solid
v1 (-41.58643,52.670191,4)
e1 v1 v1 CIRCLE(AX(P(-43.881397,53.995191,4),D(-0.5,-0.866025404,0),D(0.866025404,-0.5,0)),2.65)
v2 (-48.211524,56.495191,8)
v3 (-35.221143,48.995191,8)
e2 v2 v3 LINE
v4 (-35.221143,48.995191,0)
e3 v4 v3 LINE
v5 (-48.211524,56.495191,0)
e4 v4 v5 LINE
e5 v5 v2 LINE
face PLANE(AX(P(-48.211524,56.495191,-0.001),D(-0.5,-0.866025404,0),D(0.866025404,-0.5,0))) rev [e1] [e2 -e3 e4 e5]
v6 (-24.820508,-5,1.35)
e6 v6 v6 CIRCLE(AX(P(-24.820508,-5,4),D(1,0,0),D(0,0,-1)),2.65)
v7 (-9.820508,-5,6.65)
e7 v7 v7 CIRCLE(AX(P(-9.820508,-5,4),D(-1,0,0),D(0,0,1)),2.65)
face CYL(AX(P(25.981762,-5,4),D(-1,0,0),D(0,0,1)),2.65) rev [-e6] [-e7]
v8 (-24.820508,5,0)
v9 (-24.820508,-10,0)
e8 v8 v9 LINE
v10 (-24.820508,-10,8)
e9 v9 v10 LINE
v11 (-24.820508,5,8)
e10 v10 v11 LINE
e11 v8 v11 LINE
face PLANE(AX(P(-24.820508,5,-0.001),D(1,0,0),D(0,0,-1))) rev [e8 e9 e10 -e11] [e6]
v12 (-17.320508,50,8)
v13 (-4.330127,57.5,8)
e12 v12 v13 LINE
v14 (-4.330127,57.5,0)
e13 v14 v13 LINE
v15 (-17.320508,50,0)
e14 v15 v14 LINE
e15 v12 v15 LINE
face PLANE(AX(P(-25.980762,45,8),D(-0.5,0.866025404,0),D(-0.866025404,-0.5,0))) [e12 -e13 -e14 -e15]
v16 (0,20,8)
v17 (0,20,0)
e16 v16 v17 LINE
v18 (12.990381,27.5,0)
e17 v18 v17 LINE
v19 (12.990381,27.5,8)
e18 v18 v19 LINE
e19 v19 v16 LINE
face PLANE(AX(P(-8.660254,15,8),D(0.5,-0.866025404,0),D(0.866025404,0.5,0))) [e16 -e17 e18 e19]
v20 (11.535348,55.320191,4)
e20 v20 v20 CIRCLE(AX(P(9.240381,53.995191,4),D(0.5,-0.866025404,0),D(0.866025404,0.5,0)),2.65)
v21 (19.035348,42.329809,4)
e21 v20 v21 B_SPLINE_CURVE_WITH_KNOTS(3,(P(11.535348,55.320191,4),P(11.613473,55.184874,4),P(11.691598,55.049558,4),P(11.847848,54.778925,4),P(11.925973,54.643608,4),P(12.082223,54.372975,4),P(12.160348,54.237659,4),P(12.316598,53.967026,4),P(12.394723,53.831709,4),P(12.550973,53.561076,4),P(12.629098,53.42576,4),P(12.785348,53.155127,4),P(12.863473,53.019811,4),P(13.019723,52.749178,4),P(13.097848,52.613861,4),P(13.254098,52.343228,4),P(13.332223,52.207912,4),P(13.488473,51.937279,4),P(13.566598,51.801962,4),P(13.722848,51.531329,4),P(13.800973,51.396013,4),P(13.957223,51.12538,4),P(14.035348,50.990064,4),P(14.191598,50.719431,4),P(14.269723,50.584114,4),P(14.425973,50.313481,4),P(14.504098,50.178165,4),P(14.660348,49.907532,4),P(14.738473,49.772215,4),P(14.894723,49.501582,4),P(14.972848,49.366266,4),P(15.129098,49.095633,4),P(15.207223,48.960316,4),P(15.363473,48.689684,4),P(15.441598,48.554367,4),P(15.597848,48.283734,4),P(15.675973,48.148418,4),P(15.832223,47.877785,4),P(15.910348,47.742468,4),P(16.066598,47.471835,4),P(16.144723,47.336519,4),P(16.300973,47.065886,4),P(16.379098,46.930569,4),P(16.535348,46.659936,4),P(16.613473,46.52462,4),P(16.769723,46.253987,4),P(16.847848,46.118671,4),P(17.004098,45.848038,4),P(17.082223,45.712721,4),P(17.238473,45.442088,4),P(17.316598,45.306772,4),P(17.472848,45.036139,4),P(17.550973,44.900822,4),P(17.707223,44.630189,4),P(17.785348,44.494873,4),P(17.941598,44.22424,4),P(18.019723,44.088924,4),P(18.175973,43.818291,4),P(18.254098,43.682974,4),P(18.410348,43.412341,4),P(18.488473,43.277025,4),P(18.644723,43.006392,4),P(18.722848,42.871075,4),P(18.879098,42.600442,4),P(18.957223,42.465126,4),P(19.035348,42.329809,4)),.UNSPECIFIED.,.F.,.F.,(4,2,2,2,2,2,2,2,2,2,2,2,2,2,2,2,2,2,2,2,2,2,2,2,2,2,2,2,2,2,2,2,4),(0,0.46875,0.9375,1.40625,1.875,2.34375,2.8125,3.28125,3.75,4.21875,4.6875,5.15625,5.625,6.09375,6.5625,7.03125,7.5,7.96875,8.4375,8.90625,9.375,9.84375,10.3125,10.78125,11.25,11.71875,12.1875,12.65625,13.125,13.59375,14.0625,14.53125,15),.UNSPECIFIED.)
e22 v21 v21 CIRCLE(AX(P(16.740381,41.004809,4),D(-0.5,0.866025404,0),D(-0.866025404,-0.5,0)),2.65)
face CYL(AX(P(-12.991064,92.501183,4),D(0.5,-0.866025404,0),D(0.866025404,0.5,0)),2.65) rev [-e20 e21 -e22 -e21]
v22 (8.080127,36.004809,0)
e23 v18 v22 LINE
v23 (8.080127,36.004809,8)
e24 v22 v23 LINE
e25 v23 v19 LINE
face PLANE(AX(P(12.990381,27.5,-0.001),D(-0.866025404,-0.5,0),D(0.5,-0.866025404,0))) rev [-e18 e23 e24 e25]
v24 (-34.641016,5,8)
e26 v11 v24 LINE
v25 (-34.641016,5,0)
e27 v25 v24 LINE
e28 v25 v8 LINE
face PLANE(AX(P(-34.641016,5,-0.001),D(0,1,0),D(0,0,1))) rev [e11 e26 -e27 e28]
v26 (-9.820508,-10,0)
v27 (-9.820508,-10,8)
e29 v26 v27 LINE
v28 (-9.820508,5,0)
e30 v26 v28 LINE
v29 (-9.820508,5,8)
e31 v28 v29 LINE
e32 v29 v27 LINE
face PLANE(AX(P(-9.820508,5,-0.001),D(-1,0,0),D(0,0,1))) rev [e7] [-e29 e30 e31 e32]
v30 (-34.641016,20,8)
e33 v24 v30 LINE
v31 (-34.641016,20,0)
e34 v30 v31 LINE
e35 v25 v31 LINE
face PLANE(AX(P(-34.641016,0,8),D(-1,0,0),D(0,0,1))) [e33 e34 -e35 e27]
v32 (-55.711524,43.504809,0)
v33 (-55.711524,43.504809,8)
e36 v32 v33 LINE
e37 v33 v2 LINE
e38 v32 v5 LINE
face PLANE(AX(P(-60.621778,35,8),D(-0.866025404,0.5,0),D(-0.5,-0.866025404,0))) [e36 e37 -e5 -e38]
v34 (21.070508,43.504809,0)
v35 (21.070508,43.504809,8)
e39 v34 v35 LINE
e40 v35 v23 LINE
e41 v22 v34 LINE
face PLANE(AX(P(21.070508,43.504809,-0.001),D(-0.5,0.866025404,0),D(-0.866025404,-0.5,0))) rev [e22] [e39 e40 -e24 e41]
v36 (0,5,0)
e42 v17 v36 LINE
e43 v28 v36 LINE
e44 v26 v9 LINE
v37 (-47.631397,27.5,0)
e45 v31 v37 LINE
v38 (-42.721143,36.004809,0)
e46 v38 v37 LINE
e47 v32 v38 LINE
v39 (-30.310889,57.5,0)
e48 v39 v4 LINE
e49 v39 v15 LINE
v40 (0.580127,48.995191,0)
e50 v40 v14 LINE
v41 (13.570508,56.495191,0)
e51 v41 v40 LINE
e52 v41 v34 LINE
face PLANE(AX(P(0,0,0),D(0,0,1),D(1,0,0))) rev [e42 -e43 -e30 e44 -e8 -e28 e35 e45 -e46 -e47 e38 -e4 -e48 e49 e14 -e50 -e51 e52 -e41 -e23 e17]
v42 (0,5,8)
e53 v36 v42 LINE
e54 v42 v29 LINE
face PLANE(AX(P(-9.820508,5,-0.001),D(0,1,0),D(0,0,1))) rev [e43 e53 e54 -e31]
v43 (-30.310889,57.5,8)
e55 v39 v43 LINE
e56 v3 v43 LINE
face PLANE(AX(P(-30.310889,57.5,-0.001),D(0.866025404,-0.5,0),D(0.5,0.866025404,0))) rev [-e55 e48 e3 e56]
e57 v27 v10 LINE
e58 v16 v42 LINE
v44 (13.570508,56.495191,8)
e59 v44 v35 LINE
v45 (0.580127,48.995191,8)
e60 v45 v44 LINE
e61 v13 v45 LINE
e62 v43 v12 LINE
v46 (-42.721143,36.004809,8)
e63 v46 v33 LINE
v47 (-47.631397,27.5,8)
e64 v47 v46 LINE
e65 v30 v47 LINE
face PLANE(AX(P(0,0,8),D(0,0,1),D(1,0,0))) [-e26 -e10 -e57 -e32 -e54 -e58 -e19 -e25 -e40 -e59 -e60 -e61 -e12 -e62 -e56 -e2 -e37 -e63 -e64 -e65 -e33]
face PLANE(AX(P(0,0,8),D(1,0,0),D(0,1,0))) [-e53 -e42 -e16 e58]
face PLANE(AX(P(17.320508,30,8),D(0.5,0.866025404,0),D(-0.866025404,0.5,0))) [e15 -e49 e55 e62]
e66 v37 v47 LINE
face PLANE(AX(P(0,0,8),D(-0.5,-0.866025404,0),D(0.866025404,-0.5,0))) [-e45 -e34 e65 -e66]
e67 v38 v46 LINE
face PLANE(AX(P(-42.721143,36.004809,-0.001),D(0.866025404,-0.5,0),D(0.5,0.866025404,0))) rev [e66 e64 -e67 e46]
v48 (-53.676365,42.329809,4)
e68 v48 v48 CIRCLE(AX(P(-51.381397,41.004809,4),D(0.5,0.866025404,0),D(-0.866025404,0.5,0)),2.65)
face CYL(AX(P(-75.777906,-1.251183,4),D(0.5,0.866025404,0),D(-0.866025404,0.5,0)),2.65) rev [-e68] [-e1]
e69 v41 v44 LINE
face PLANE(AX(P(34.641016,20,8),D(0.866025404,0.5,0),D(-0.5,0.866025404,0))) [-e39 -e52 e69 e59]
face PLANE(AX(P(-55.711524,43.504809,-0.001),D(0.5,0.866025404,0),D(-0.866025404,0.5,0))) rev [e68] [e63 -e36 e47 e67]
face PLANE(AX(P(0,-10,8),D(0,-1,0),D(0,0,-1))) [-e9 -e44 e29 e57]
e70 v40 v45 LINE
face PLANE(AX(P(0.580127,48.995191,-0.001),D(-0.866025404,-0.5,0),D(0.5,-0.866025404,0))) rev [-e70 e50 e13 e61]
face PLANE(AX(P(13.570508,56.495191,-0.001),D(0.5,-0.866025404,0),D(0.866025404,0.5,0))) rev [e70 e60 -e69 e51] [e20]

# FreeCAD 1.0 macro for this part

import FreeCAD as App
import Part
import Sketcher
from FreeCAD import Vector
Q = App.Units.Quantity

doc = App.newDocument("Part")
body = doc.addObject("PartDesign::Body", "Body")

sketch1 = doc.addObject("Sketcher::SketchObject", "Sketch")
body.addObject(sketch1)
sketch1.AttachmentSupport = (doc.XY_Plane, [""])
sketch1.MapMode = "FlatFace"
sketch1.addGeometry(Part.LineSegment(Vector(-61, 35, 0), Vector(-52, 30, 0)), False)
sketch1.addGeometry(Part.LineSegment(Vector(-52, 30, 0), Vector(-35, 20, 0)), False)
sketch1.addGeometry(Part.LineSegment(Vector(-35, 20, 0), Vector(-35, -10, 0)), False)
sketch1.addGeometry(Part.LineSegment(Vector(-35, -10, 0), Vector(0, -10, 0)), False)
sketch1.addGeometry(Part.LineSegment(Vector(0, -10, 0), Vector(0, 20, 0)), False)
sketch1.addGeometry(Part.LineSegment(Vector(0, 20, 0), Vector(26, 35, 0)), False)
sketch1.addGeometry(Part.LineSegment(Vector(26, 35, 0), Vector(9, 65, 0)), False)
sketch1.addGeometry(Part.LineSegment(Vector(9, 65, 0), Vector(0, 60, 0)), False)
sketch1.addGeometry(Part.LineSegment(Vector(0, 60, 0), Vector(-17, 50, 0)), False)
sketch1.addGeometry(Part.LineSegment(Vector(-17, 50, 0), Vector(-43, 65, 0)), False)
sketch1.addGeometry(Part.LineSegment(Vector(-43, 65, 0), Vector(-61, 35, 0)), False)
sketch1.addConstraint(Sketcher.Constraint("Coincident", 0, 2, 1, 1))
sketch1.addConstraint(Sketcher.Constraint("Coincident", 1, 2, 2, 1))
sketch1.addConstraint(Sketcher.Constraint("Coincident", 2, 2, 3, 1))
sketch1.addConstraint(Sketcher.Constraint("Coincident", 3, 2, 4, 1))
sketch1.addConstraint(Sketcher.Constraint("Coincident", 4, 2, 5, 1))
sketch1.addConstraint(Sketcher.Constraint("Coincident", 5, 2, 6, 1))
sketch1.addConstraint(Sketcher.Constraint("Coincident", 6, 2, 7, 1))
sketch1.addConstraint(Sketcher.Constraint("Coincident", 7, 2, 8, 1))
sketch1.addConstraint(Sketcher.Constraint("Coincident", 8, 2, 9, 1))
sketch1.addConstraint(Sketcher.Constraint("Coincident", 9, 2, 10, 1))
sketch1.addConstraint(Sketcher.Constraint("Coincident", 10, 2, 0, 1))
sketch1.addConstraint(Sketcher.Constraint("Vertical", 2))
sketch1.addConstraint(Sketcher.Constraint("Horizontal", 3))
sketch1.addConstraint(Sketcher.Constraint("Vertical", 4))
sketch1.addConstraint(Sketcher.Constraint("PointOnObject", 3, 2, -2))
sketch1.addConstraint(Sketcher.Constraint("PointOnObject", 7, 2, -2))
sketch1.addConstraint(Sketcher.Constraint("Parallel", 0, 1))
sketch1.addConstraint(Sketcher.Constraint("Perpendicular", 5, 6))
sketch1.addConstraint(Sketcher.Constraint("Perpendicular", 6, 7))
sketch1.addConstraint(Sketcher.Constraint("Parallel", 7, 8))
sketch1.addConstraint(Sketcher.Constraint("Parallel", 1, 9))
sketch1.addConstraint(Sketcher.Constraint("Perpendicular", 9, 10))
sketch1.addConstraint(Sketcher.Constraint("Horizontal", 1, 2, 4, 2))
sketch1.addConstraint(Sketcher.Constraint("Horizontal", 6, 2, 9, 2))
sketch1.addConstraint(Sketcher.Constraint("Horizontal", 5, 2, 10, 2))
sketch1.addConstraint(Sketcher.Constraint("Equal", 0, 7))
sketch1.addConstraint(Sketcher.Constraint("Equal", 1, 8))
sketch1.addConstraint(Sketcher.Constraint("Equal", 5, 9))
sketch1.addConstraint(Sketcher.Constraint("DistanceY", 2, 2, 2, 1, Q("30 mm")))
sketch1.addConstraint(Sketcher.Constraint("Angle", 0, Q("-30 deg")))
sketch1.addConstraint(Sketcher.Constraint("Distance", 0, Q("10 mm")))
sketch1.addConstraint(Sketcher.Constraint("Distance", 1, Q("20 mm")))
sketch1.addConstraint(Sketcher.Constraint("DistanceY", -1, 1, 0, 2, Q("30 mm")))
pad1 = doc.addObject("PartDesign::Pad", "Pad")
body.addObject(pad1)
pad1.Profile = sketch1
pad1.Length = 8

sketch2 = doc.addObject("Sketcher::SketchObject", "Sketch001")
body.addObject(sketch2)
sketch2.AttachmentSupport = (doc.YZ_Plane, [""])
sketch2.MapMode = "FlatFace"
sketch2.AttachmentOffset = App.Placement(Vector(0, 0, -34.641016), App.Rotation())
sketch2.addGeometry(Part.Circle(Vector(-5, 4, 0), Vector(0, 0, 1), 2.6), False)
sketch2.addConstraint(Sketcher.Constraint("Diameter", 0, Q("5.3 mm")))
sketch2.addConstraint(Sketcher.Constraint("DistanceX", 0, 3, -1, 1, Q("5 mm")))
sketch2.addConstraint(Sketcher.Constraint("DistanceY", -1, 1, 0, 3, Q("4 mm")))
pocket1 = doc.addObject("PartDesign::Pocket", "Pocket")
body.addObject(pocket1)
pocket1.Profile = sketch2
pocket1.Type = "UpToFirst"
pocket1.Reversed = True

sketch3 = doc.addObject("Sketcher::SketchObject", "Sketch002")
body.addObject(sketch3)
sketch3.Placement = App.Placement(Vector(17.320508, 30, 0), App.Rotation(Vector(-0.866025404, 0.5, 0), Vector(0, 0, 1), Vector(0.5, 0.866025404, 0), "ZXY"))
sketch3.addGeometry(Part.Circle(Vector(65, 4, 0), Vector(0, 0, 1), 2.6), False)
sketch3.addConstraint(Sketcher.Constraint("Diameter", 0, Q("5.3 mm")))
sketch3.addConstraint(Sketcher.Constraint("DistanceX", -1, 1, 0, 3, Q("65 mm")))
sketch3.addConstraint(Sketcher.Constraint("DistanceY", -1, 1, 0, 3, Q("4 mm")))
pocket2 = doc.addObject("PartDesign::Pocket", "Pocket001")
body.addObject(pocket2)
pocket2.Profile = sketch3
pocket2.Type = "UpToFirst"

sketch4 = doc.addObject("Sketcher::SketchObject", "Sketch003")
body.addObject(sketch4)
sketch4.Placement = App.Placement(Vector(-8.660254, 15, 0), App.Rotation(Vector(0.866025404, 0.5, 0), Vector(0, 0, 1), Vector(0.5, -0.866025404, 0), "ZXY"))
sketch4.addGeometry(Part.Circle(Vector(35, 4, 0), Vector(0, 0, 1), 2.6), False)
sketch4.addConstraint(Sketcher.Constraint("Diameter", 0, Q("5.3 mm")))
sketch4.addConstraint(Sketcher.Constraint("DistanceX", -1, 1, 0, 3, Q("35 mm")))
sketch4.addConstraint(Sketcher.Constraint("DistanceY", -1, 1, 0, 3, Q("4 mm")))
pocket3 = doc.addObject("PartDesign::Pocket", "Pocket002")
body.addObject(pocket3)
pocket3.Profile = sketch4
pocket3.Type = "UpToFirst"

sketch5 = doc.addObject("Sketcher::SketchObject", "Sketch004")
body.addObject(sketch5)
sketch5.AttachmentSupport = (doc.XY_Plane, [""])
sketch5.MapMode = "FlatFace"
sketch5.AttachmentOffset = App.Placement(Vector(0, 0, 8), App.Rotation())
sketch5.addGeometry(Part.LineSegment(Vector(-35, 5, 0), Vector(-35, -10, 0)), False)
sketch5.addGeometry(Part.LineSegment(Vector(-35, -10, 0), Vector(-25, -10, 0)), False)
sketch5.addGeometry(Part.LineSegment(Vector(-25, -10, 0), Vector(-25, 5, 0)), False)
sketch5.addGeometry(Part.LineSegment(Vector(-25, 5, 0), Vector(-35, 5, 0)), False)
sketch5.addConstraint(Sketcher.Constraint("Coincident", 0, 2, 1, 1))
sketch5.addConstraint(Sketcher.Constraint("Coincident", 1, 2, 2, 1))
sketch5.addConstraint(Sketcher.Constraint("Coincident", 2, 2, 3, 1))
sketch5.addConstraint(Sketcher.Constraint("Coincident", 3, 2, 0, 1))
sketch5.addConstraint(Sketcher.Constraint("Vertical", 0))
sketch5.addConstraint(Sketcher.Constraint("Horizontal", 1))
sketch5.addConstraint(Sketcher.Constraint("Vertical", 2))
sketch5.addConstraint(Sketcher.Constraint("Horizontal", 3))
sketch5.addConstraint(Sketcher.Constraint("DistanceY", 0, 2, 0, 1, Q("15 mm")))
sketch5.addConstraint(Sketcher.Constraint("DistanceY", 0, 2, -1, 1, Q("10 mm")))
sketch5.addConstraint(Sketcher.Constraint("DistanceX", 1, 1, 1, 2, Q("9.820508 mm")))
sketch5.addConstraint(Sketcher.Constraint("DistanceX", 1, 2, -1, 1, Q("24.820508 mm")))
pocket4 = doc.addObject("PartDesign::Pocket", "Pocket003")
body.addObject(pocket4)
pocket4.Profile = sketch5
pocket4.Type = "UpToFirst"

sketch6 = doc.addObject("Sketcher::SketchObject", "Sketch005")
body.addObject(sketch6)
sketch6.AttachmentSupport = (doc.XY_Plane, [""])
sketch6.MapMode = "FlatFace"
sketch6.AttachmentOffset = App.Placement(Vector(0, 0, 8), App.Rotation())
sketch6.addGeometry(Part.LineSegment(Vector(-10, 5, 0), Vector(-10, -10, 0)), False)
sketch6.addGeometry(Part.LineSegment(Vector(-10, -10, 0), Vector(0, -10, 0)), False)
sketch6.addGeometry(Part.LineSegment(Vector(0, -10, 0), Vector(0, 5, 0)), False)
sketch6.addGeometry(Part.LineSegment(Vector(0, 5, 0), Vector(-10, 5, 0)), False)
sketch6.addConstraint(Sketcher.Constraint("Coincident", 0, 2, 1, 1))
sketch6.addConstraint(Sketcher.Constraint("Coincident", 1, 2, 2, 1))
sketch6.addConstraint(Sketcher.Constraint("Coincident", 2, 2, 3, 1))
sketch6.addConstraint(Sketcher.Constraint("Coincident", 3, 2, 0, 1))
sketch6.addConstraint(Sketcher.Constraint("Vertical", 0))
sketch6.addConstraint(Sketcher.Constraint("Horizontal", 1))
sketch6.addConstraint(Sketcher.Constraint("Vertical", 2))
sketch6.addConstraint(Sketcher.Constraint("Horizontal", 3))
sketch6.addConstraint(Sketcher.Constraint("PointOnObject", 1, 2, -2))
sketch6.addConstraint(Sketcher.Constraint("DistanceY", 0, 2, 0, 1, Q("15 mm")))
sketch6.addConstraint(Sketcher.Constraint("DistanceY", 0, 2, -1, 1, Q("10 mm")))
sketch6.addConstraint(Sketcher.Constraint("DistanceX", 1, 1, 1, 2, Q("9.820508 mm")))
pocket5 = doc.addObject("PartDesign::Pocket", "Pocket004")
body.addObject(pocket5)
pocket5.Profile = sketch6
pocket5.Type = "UpToFirst"

sketch7 = doc.addObject("Sketcher::SketchObject", "Sketch006")
body.addObject(sketch7)
sketch7.AttachmentSupport = (doc.XY_Plane, [""])
sketch7.MapMode = "FlatFace"
sketch7.AttachmentOffset = App.Placement(Vector(0, 0, 8), App.Rotation())
sketch7.addGeometry(Part.LineSegment(Vector(-56, 44, 0), Vector(-61, 35, 0)), False)
sketch7.addGeometry(Part.LineSegment(Vector(-61, 35, 0), Vector(-48, 28, 0)), False)
sketch7.addGeometry(Part.LineSegment(Vector(-48, 28, 0), Vector(-43, 36, 0)), False)
sketch7.addGeometry(Part.LineSegment(Vector(-43, 36, 0), Vector(-56, 44, 0)), False)
sketch7.addConstraint(Sketcher.Constraint("Coincident", 0, 2, 1, 1))
sketch7.addConstraint(Sketcher.Constraint("Coincident", 1, 2, 2, 1))
sketch7.addConstraint(Sketcher.Constraint("Coincident", 2, 2, 3, 1))
sketch7.addConstraint(Sketcher.Constraint("Coincident", 3, 2, 0, 1))
sketch7.addConstraint(Sketcher.Constraint("Perpendicular", 0, 1))
sketch7.addConstraint(Sketcher.Constraint("Perpendicular", 1, 2))
sketch7.addConstraint(Sketcher.Constraint("Perpendicular", 2, 3))
sketch7.addConstraint(Sketcher.Constraint("Angle", 0, Q("-120 deg")))
sketch7.addConstraint(Sketcher.Constraint("Distance", 1, Q("15 mm")))
sketch7.addConstraint(Sketcher.Constraint("DistanceY", -1, 1, 0, 2, Q("35 mm")))
sketch7.addConstraint(Sketcher.Constraint("Distance", 0, Q("9.820508 mm")))
sketch7.addConstraint(Sketcher.Constraint("DistanceX", 0, 2, -1, 1, Q("60.621778 mm")))
pocket6 = doc.addObject("PartDesign::Pocket", "Pocket005")
body.addObject(pocket6)
pocket6.Profile = sketch7
pocket6.Type = "UpToFirst"

sketch8 = doc.addObject("Sketcher::SketchObject", "Sketch007")
body.addObject(sketch8)
sketch8.AttachmentSupport = (doc.XY_Plane, [""])
sketch8.MapMode = "FlatFace"
sketch8.AttachmentOffset = App.Placement(Vector(0, 0, 8), App.Rotation())
sketch8.addGeometry(Part.LineSegment(Vector(-30, 58, 0), Vector(-43, 65, 0)), False)
sketch8.addGeometry(Part.LineSegment(Vector(-43, 65, 0), Vector(-48, 56, 0)), False)
sketch8.addGeometry(Part.LineSegment(Vector(-48, 56, 0), Vector(-35, 49, 0)), False)
sketch8.addGeometry(Part.LineSegment(Vector(-35, 49, 0), Vector(-30, 58, 0)), False)
sketch8.addConstraint(Sketcher.Constraint("Coincident", 0, 2, 1, 1))
sketch8.addConstraint(Sketcher.Constraint("Coincident", 1, 2, 2, 1))
sketch8.addConstraint(Sketcher.Constraint("Coincident", 2, 2, 3, 1))
sketch8.addConstraint(Sketcher.Constraint("Coincident", 3, 2, 0, 1))
sketch8.addConstraint(Sketcher.Constraint("Perpendicular", 0, 1))
sketch8.addConstraint(Sketcher.Constraint("Perpendicular", 1, 2))
sketch8.addConstraint(Sketcher.Constraint("Perpendicular", 2, 3))
sketch8.addConstraint(Sketcher.Constraint("Angle", 0, Q("150 deg")))
sketch8.addConstraint(Sketcher.Constraint("Distance", 0, Q("15 mm")))
sketch8.addConstraint(Sketcher.Constraint("DistanceY", -1, 1, 0, 2, Q("65 mm")))
sketch8.addConstraint(Sketcher.Constraint("Distance", 1, Q("9.820508 mm")))
sketch8.addConstraint(Sketcher.Constraint("DistanceX", 0, 2, -1, 1, Q("43.30127 mm")))
pocket7 = doc.addObject("PartDesign::Pocket", "Pocket006")
body.addObject(pocket7)
pocket7.Profile = sketch8
pocket7.Type = "UpToFirst"

sketch9 = doc.addObject("Sketcher::SketchObject", "Sketch008")
body.addObject(sketch9)
sketch9.AttachmentSupport = (doc.XY_Plane, [""])
sketch9.MapMode = "FlatFace"
sketch9.AttachmentOffset = App.Placement(Vector(0, 0, 8), App.Rotation())
sketch9.addGeometry(Part.LineSegment(Vector(14, 56, 0), Vector(9, 65, 0)), False)
sketch9.addGeometry(Part.LineSegment(Vector(9, 65, 0), Vector(-4, 58, 0)), False)
sketch9.addGeometry(Part.LineSegment(Vector(-4, 58, 0), Vector(1, 49, 0)), False)
sketch9.addGeometry(Part.LineSegment(Vector(1, 49, 0), Vector(14, 56, 0)), False)
sketch9.addConstraint(Sketcher.Constraint("Coincident", 0, 2, 1, 1))
sketch9.addConstraint(Sketcher.Constraint("Coincident", 1, 2, 2, 1))
sketch9.addConstraint(Sketcher.Constraint("Coincident", 2, 2, 3, 1))
sketch9.addConstraint(Sketcher.Constraint("Coincident", 3, 2, 0, 1))
sketch9.addConstraint(Sketcher.Constraint("Perpendicular", 0, 1))
sketch9.addConstraint(Sketcher.Constraint("Perpendicular", 1, 2))
sketch9.addConstraint(Sketcher.Constraint("Perpendicular", 2, 3))
sketch9.addConstraint(Sketcher.Constraint("Angle", 0, Q("120 deg")))
sketch9.addConstraint(Sketcher.Constraint("Distance", 1, Q("15 mm")))
sketch9.addConstraint(Sketcher.Constraint("DistanceY", -1, 1, 0, 2, Q("65 mm")))
sketch9.addConstraint(Sketcher.Constraint("Distance", 0, Q("9.820508 mm")))
sketch9.addConstraint(Sketcher.Constraint("DistanceX", -1, 1, 3, 2, Q("13.570508 mm")))
pocket8 = doc.addObject("PartDesign::Pocket", "Pocket007")
body.addObject(pocket8)
pocket8.Profile = sketch9
pocket8.Type = "UpToFirst"

sketch10 = doc.addObject("Sketcher::SketchObject", "Sketch009")
body.addObject(sketch10)
sketch10.AttachmentSupport = (doc.XY_Plane, [""])
sketch10.MapMode = "FlatFace"
sketch10.AttachmentOffset = App.Placement(Vector(0, 0, 8), App.Rotation())
sketch10.addGeometry(Part.LineSegment(Vector(13, 28, 0), Vector(26, 35, 0)), False)
sketch10.addGeometry(Part.LineSegment(Vector(26, 35, 0), Vector(21, 44, 0)), False)
sketch10.addGeometry(Part.LineSegment(Vector(21, 44, 0), Vector(8, 36, 0)), False)
sketch10.addGeometry(Part.LineSegment(Vector(8, 36, 0), Vector(13, 28, 0)), False)
sketch10.addConstraint(Sketcher.Constraint("Coincident", 0, 2, 1, 1))
sketch10.addConstraint(Sketcher.Constraint("Coincident", 1, 2, 2, 1))
sketch10.addConstraint(Sketcher.Constraint("Coincident", 2, 2, 3, 1))
sketch10.addConstraint(Sketcher.Constraint("Coincident", 3, 2, 0, 1))
sketch10.addConstraint(Sketcher.Constraint("Perpendicular", 0, 1))
sketch10.addConstraint(Sketcher.Constraint("Perpendicular", 1, 2))
sketch10.addConstraint(Sketcher.Constraint("Perpendicular", 2, 3))
sketch10.addConstraint(Sketcher.Constraint("Angle", 0, Q("30 deg")))
sketch10.addConstraint(Sketcher.Constraint("Distance", 0, Q("15 mm")))
sketch10.addConstraint(Sketcher.Constraint("DistanceY", -1, 1, 0, 2, Q("35 mm")))
sketch10.addConstraint(Sketcher.Constraint("Distance", 1, Q("9.820508 mm")))
sketch10.addConstraint(Sketcher.Constraint("DistanceX", -1, 1, 1, 2, Q("21.070508 mm")))
pocket9 = doc.addObject("PartDesign::Pocket", "Pocket008")
body.addObject(pocket9)
pocket9.Profile = sketch10
pocket9.Type = "UpToFirst"

doc.recompute()
